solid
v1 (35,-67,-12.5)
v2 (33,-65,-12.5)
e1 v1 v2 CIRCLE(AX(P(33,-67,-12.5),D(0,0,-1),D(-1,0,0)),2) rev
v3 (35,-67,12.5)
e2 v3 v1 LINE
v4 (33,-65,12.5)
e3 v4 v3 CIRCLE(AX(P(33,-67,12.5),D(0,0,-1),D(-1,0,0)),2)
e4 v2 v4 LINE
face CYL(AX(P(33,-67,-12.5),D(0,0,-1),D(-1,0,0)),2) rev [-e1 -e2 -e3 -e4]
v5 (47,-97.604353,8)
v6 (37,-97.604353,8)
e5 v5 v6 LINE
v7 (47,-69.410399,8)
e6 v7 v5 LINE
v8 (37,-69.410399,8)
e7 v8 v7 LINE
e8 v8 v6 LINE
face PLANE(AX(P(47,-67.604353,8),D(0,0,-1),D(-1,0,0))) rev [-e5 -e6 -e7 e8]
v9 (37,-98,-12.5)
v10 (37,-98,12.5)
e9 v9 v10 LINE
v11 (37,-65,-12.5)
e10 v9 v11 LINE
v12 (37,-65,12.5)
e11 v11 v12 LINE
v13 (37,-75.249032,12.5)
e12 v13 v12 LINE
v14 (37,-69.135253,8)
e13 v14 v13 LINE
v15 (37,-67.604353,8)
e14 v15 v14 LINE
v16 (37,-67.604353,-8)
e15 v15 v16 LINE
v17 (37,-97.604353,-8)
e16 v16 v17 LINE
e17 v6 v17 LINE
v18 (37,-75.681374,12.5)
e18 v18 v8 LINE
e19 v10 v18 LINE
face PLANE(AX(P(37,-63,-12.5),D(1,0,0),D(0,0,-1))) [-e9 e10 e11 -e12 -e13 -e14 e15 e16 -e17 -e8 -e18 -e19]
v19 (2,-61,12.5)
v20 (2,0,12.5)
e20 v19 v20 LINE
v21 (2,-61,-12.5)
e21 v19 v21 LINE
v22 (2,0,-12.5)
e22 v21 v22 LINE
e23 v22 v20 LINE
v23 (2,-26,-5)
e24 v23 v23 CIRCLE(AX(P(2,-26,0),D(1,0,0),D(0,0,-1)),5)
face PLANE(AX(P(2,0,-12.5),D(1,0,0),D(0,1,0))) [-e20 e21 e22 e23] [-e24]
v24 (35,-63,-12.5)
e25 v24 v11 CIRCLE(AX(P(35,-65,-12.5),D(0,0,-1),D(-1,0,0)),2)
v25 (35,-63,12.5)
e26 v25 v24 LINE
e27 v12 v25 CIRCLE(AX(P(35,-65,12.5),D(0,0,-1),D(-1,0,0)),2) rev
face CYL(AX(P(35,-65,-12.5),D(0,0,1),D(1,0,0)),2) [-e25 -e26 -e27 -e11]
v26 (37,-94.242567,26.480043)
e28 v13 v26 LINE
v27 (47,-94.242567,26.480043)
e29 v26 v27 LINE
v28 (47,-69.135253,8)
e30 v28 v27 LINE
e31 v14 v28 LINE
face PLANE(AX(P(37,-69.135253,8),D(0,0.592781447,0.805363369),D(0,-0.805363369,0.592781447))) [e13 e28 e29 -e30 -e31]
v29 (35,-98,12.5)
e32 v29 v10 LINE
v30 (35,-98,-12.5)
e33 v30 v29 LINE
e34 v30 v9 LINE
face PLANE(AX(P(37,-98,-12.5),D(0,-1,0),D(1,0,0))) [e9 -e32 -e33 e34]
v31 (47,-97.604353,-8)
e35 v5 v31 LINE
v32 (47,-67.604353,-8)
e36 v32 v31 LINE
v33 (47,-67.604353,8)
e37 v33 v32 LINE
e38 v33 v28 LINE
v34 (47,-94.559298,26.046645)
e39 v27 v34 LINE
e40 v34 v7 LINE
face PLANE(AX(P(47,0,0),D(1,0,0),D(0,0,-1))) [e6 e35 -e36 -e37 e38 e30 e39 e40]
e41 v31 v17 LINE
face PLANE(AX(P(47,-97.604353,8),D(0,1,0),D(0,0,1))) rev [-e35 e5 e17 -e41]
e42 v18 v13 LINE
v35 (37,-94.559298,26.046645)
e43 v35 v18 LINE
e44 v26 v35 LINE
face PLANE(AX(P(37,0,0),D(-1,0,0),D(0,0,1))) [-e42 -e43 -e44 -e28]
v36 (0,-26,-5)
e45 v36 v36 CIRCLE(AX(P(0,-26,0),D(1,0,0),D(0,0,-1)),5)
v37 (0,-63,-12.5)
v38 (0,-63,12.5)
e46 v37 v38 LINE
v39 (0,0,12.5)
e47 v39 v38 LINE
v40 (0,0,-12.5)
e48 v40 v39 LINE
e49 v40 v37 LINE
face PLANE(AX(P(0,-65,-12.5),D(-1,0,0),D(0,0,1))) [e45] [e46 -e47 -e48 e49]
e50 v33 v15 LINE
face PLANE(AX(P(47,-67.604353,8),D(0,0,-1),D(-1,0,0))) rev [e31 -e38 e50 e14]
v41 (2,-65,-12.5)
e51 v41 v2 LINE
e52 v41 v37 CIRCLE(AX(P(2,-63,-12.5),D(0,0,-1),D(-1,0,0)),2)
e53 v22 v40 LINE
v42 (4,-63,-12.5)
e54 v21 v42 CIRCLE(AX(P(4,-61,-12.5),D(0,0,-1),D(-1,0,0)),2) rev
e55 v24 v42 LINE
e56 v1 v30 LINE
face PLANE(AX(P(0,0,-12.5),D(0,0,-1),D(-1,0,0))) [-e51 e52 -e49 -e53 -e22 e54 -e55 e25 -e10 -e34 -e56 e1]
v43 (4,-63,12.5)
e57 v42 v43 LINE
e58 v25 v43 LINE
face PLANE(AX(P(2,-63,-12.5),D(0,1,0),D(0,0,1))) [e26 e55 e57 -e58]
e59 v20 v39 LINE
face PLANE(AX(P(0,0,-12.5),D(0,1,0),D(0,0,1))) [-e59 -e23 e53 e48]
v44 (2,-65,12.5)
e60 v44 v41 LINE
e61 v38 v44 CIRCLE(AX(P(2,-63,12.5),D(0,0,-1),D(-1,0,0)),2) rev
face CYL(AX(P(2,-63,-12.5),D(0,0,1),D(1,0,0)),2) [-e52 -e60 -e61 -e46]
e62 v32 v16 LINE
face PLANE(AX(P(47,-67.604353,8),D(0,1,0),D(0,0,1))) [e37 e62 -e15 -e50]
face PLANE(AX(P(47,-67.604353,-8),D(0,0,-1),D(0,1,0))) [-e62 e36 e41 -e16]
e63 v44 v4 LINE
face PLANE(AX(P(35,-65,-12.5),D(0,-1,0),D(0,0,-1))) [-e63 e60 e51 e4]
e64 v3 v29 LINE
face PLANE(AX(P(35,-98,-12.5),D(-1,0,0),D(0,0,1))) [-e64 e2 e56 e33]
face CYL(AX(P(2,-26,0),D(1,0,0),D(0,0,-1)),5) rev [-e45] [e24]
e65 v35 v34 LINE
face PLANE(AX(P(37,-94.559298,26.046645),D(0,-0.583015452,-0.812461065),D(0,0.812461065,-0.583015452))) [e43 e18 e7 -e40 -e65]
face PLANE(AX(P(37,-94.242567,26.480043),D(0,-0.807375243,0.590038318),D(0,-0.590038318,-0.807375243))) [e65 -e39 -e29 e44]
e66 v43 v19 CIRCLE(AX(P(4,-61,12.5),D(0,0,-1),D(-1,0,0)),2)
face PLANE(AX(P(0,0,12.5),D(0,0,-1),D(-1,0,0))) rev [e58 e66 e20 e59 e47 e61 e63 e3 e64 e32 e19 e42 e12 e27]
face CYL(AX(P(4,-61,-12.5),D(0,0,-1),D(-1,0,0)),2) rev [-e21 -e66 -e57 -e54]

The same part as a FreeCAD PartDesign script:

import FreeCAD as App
import Part
import Sketcher
from FreeCAD import Vector


def edges_at(feature, points):
    """Names of the edges that pass closest to the given points."""
    edges = feature.Shape.Edges
    near = lambda p: min(range(len(edges)), key=lambda i: edges[i].distToShape(Part.Vertex(*p))[0])
    return sorted({f"Edge{near(p) + 1}" for p in points})


def add_polygon(sketch, points):
    """Adds a closed chain of lines whose ends are joined by coincident constraints."""
    first, n = sketch.GeometryCount, len(points)
    for a, b in zip(points, points[1:] + points[:1]):
        sketch.addGeometry(Part.LineSegment(App.Vector(*a, 0), App.Vector(*b, 0)), False)
    for i in range(n):
        sketch.addConstraint(Sketcher.Constraint("Coincident", first + i, 2, first + (i + 1) % n, 1))

doc = App.newDocument("Part")
body = doc.addObject("PartDesign::Body", "Body")

# Sketch on XY plane
sketch1 = body.newObject("Sketcher::SketchObject", "Sketch")
sketch1.AttachmentSupport = (doc.getObject("XY_Plane"), [""])
sketch1.MapMode = "FlatFace"
add_polygon(sketch1, [(2, 0), (0, 0), (0, -65), (35, -65), (35, -98), (37, -98), (37, -63), (2, -63)])  # lines 0-7
sketch1.addConstraint(Sketcher.Constraint("Horizontal", 0))
sketch1.addConstraint(Sketcher.Constraint("Vertical", 1))
sketch1.addConstraint(Sketcher.Constraint("Horizontal", 2))
sketch1.addConstraint(Sketcher.Constraint("Vertical", 3))
sketch1.addConstraint(Sketcher.Constraint("Horizontal", 4))
sketch1.addConstraint(Sketcher.Constraint("Vertical", 5))
sketch1.addConstraint(Sketcher.Constraint("Horizontal", 6))
sketch1.addConstraint(Sketcher.Constraint("Vertical", 7))
sketch1.addConstraint(Sketcher.Constraint("Coincident", 0, 2, -1, 1))
sketch1.addConstraint(Sketcher.Constraint("Equal", 0, 4))
sketch1.addConstraint(Sketcher.Constraint("Equal", 6, 5))
sketch1.addConstraint(Sketcher.Constraint("DistanceX", 0, 2, 0, 1, 2.0))
sketch1.addConstraint(Sketcher.Constraint("DistanceX", 2, 1, 2, 2, 35.0))
sketch1.addConstraint(Sketcher.Constraint("DistanceY", 1, 2, 1, 1, 65.0))
sketch1.addConstraint(Sketcher.Constraint("DistanceY", 3, 2, 3, 1, 33.0))
pad1 = body.newObject("PartDesign::Pad", "Pad")
pad1.Profile = sketch1
pad1.Type = "TwoLengths"
pad1.Length = 12.5
pad1.Length2 = 12.5

# Sketch on YZ plane
sketch2 = body.newObject("Sketcher::SketchObject", "Sketch001")
sketch2.AttachmentSupport = (doc.getObject("YZ_Plane"), [""])
sketch2.MapMode = "FlatFace"
sketch2.AttachmentOffset = App.Placement(Vector(0, 0, 2), App.Rotation())
sketch2.addGeometry(Part.Circle(Vector(-26, 0, 0), Vector(0, 0, 1), 5), False)
sketch2.addConstraint(Sketcher.Constraint("PointOnObject", 0, 3, -1))
sketch2.addConstraint(Sketcher.Constraint("Diameter", 0, 10.0))
sketch2.addConstraint(Sketcher.Constraint("DistanceX", 0, 3, -1, 1, 26.0))
doc.recompute()
hole = body.newObject("PartDesign::Hole", "Hole")
hole.Profile = sketch2
hole.ThreadType = "None"
hole.Diameter = 10
hole.DepthType = "ThroughAll"
doc.recompute()

fillet = body.newObject("PartDesign::Fillet", "Fillet")
fillet.Base = (hole, edges_at(hole, [
    (2, -63, 0),
    (37, -63, 0),
    (35, -65, 0),
    (0, -65, 0),
]))
fillet.Radius = 2

# Sketch on YZ plane
sketch3 = body.newObject("Sketcher::SketchObject", "Sketch002")
sketch3.AttachmentSupport = (doc.getObject("YZ_Plane"), [""])
sketch3.MapMode = "FlatFace"
sketch3.AttachmentOffset = App.Placement(Vector(0, 0, 37), App.Rotation())
add_polygon(sketch3, [(-68, 8), (-98, 8), (-98, -8), (-68, -8)])  # lines 0-3
sketch3.addConstraint(Sketcher.Constraint("Horizontal", 0))
sketch3.addConstraint(Sketcher.Constraint("Vertical", 1))
sketch3.addConstraint(Sketcher.Constraint("Horizontal", 2))
sketch3.addConstraint(Sketcher.Constraint("Vertical", 3))
sketch3.addConstraint(Sketcher.Constraint("DistanceX", 0, 2, 0, 1, 30.0))
sketch3.addConstraint(Sketcher.Constraint("DistanceY", 1, 2, 1, 1, 16.0))
sketch3.addConstraint(Sketcher.Constraint("DistanceY", -1, 1, 0, 2, 8.0))
sketch3.addConstraint(Sketcher.Constraint("DistanceX", 0, 2, -1, 1, 97.604353))
pad2 = body.newObject("PartDesign::Pad", "Pad001")
pad2.Profile = sketch3
pad2.Length = 10

# Sketch on YZ plane
sketch4 = body.newObject("Sketcher::SketchObject", "Sketch003")
sketch4.AttachmentSupport = (doc.getObject("YZ_Plane"), [""])
sketch4.MapMode = "FlatFace"
sketch4.AttachmentOffset = App.Placement(Vector(0, 0, 47), App.Rotation())
add_polygon(sketch4, [(-69.14, 8), (-94.24, 26.48), (-94.56, 26.05), (-69.41, 8)])  # lines 0-3
sketch4.addConstraint(Sketcher.Constraint("Horizontal", 3))
sketch4.addConstraint(Sketcher.Constraint("DistanceY", -1, 1, 2, 2, 8.0))
sketch4.addConstraint(Sketcher.Constraint("Distance", 1, 0.536799))
sketch4.addConstraint(Sketcher.Constraint("DistanceX", 1, 2, -1, 1, 94.559298))
sketch4.addConstraint(Sketcher.Constraint("DistanceX", 2, 2, -1, 1, 69.410399))
sketch4.addConstraint(Sketcher.Constraint("DistanceY", 1, 2, 0, 2, 0.433398))
sketch4.addConstraint(Sketcher.Constraint("DistanceX", 3, 1, 3, 2, 0.275147))
sketch4.addConstraint(Sketcher.Constraint("Distance", 0, 31.175138))
pad3 = body.newObject("PartDesign::Pad", "Pad002")
pad3.Profile = sketch4
pad3.Length = 10
pad3.Reversed = True

doc.recompute()
